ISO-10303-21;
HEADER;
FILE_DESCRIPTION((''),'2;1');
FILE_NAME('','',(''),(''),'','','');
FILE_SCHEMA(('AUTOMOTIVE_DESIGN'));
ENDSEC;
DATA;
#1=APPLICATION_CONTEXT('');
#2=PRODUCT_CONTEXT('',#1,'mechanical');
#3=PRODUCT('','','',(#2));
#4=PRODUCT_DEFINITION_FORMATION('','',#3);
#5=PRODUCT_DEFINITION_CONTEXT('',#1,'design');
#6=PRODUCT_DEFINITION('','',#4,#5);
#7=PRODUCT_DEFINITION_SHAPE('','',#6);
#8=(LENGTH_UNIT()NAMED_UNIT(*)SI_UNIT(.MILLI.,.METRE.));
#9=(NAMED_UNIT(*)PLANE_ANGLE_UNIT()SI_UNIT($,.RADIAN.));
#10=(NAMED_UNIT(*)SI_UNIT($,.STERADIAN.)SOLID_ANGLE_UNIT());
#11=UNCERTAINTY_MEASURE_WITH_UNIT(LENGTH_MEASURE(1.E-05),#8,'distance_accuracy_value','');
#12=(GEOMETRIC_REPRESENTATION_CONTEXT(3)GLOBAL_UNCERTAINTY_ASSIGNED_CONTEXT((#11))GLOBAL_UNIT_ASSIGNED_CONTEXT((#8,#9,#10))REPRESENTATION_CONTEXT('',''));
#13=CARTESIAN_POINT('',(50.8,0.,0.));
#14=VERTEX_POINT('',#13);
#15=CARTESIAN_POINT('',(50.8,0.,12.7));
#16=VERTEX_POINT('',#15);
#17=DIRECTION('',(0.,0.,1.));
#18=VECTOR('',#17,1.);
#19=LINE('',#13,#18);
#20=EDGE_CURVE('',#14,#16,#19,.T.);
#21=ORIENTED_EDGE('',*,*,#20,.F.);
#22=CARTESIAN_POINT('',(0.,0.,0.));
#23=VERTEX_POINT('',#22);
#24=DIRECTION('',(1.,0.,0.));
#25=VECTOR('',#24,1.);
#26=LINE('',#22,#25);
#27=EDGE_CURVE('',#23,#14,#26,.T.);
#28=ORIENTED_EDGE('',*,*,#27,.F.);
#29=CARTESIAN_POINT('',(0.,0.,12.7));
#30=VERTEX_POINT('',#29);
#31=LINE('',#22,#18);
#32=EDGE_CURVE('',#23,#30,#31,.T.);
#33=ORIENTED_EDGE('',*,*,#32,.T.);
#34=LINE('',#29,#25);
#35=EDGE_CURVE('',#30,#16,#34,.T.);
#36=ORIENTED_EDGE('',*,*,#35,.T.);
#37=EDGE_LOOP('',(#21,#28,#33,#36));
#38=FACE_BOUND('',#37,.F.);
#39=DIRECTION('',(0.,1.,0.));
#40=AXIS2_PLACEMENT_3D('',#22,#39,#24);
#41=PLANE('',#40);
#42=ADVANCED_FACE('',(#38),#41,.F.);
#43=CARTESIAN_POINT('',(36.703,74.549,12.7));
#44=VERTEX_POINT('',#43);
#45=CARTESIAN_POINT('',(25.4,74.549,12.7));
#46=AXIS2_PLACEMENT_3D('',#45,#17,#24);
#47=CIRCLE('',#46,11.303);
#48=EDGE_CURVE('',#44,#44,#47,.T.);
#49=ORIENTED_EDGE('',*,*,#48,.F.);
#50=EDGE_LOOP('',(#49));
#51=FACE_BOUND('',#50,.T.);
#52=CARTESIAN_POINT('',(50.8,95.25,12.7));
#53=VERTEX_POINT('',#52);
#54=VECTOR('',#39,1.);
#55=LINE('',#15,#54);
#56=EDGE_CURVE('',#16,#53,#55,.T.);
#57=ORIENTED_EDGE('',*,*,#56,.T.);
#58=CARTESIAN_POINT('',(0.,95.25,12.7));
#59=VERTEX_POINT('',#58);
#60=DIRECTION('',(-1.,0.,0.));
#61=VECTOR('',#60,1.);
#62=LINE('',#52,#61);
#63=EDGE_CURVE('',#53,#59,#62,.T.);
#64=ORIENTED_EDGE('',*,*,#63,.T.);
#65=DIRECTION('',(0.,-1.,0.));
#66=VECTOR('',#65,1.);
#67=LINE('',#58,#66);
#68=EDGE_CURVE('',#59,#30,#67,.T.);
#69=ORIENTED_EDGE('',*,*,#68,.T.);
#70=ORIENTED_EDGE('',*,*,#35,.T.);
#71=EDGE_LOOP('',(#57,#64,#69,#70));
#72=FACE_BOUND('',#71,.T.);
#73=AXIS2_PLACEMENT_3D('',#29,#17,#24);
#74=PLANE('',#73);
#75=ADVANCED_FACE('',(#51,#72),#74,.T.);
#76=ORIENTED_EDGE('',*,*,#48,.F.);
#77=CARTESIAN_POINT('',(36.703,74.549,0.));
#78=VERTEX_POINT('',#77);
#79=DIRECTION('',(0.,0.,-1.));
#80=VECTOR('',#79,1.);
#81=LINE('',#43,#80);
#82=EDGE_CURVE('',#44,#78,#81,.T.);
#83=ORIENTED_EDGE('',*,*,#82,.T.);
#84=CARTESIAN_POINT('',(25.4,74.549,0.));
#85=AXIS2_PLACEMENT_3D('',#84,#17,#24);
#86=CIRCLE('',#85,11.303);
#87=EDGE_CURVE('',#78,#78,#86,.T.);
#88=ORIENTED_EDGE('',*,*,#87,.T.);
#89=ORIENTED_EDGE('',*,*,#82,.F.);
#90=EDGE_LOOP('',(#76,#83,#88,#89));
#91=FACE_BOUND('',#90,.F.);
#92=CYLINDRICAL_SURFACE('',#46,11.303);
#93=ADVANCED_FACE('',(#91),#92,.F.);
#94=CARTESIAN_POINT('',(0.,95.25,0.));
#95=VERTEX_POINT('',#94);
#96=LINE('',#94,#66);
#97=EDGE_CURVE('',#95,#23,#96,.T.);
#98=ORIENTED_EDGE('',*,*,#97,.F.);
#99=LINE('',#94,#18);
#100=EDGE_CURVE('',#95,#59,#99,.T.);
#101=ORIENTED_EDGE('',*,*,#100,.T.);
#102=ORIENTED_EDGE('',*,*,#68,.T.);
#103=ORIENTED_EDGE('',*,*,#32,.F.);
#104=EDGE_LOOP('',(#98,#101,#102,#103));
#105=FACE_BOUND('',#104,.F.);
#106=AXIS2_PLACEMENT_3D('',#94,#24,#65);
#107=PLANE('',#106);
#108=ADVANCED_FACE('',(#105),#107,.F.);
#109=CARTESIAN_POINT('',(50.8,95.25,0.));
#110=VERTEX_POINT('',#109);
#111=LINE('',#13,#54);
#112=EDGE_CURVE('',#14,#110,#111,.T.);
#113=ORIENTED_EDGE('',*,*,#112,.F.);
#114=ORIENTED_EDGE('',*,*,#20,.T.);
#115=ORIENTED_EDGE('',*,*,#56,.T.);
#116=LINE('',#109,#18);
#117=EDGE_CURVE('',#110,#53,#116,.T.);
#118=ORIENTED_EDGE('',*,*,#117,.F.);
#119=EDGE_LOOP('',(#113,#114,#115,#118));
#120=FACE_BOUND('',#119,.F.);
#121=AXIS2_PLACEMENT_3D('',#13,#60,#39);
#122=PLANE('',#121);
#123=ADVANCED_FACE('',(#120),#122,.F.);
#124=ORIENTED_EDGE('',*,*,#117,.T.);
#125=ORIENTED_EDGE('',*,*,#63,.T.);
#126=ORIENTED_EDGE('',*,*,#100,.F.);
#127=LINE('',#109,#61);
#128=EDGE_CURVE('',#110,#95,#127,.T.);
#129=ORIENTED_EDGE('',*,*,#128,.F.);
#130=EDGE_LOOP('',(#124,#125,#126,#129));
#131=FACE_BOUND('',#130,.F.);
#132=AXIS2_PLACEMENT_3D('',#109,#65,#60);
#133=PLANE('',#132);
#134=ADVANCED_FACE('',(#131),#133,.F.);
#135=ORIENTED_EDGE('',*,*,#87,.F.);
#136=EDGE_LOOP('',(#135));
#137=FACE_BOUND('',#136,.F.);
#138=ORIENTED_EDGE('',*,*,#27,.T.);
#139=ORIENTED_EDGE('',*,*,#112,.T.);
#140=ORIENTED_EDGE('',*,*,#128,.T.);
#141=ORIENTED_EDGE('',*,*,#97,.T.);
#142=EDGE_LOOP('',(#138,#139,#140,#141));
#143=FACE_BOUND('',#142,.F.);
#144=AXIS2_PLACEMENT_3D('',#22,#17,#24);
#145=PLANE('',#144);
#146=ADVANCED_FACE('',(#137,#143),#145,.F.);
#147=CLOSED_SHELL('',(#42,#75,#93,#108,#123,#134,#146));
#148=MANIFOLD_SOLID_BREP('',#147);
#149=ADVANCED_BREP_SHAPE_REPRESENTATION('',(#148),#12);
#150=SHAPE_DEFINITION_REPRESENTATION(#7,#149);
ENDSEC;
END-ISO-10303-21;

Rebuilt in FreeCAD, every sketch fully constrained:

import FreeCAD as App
import Part
import Sketcher
from FreeCAD import Vector
Q = App.Units.Quantity


def add_polygon(sketch, points):
    """Adds a closed chain of lines whose ends are joined by coincident constraints."""
    first, n = sketch.GeometryCount, len(points)
    for a, b in zip(points, points[1:] + points[:1]):
        sketch.addGeometry(Part.LineSegment(App.Vector(*a, 0), App.Vector(*b, 0)), False)
    for i in range(n):
        sketch.addConstraint(Sketcher.Constraint("Coincident", first + i, 2, first + (i + 1) % n, 1))

doc = App.newDocument("Part")
body = doc.addObject("PartDesign::Body", "Body")

sketch1 = body.newObject("Sketcher::SketchObject", "Sketch")
sketch1.AttachmentSupport = (doc.getObject("XY_Plane"), [""])
sketch1.MapMode = "FlatFace"
add_polygon(sketch1, [(0, 95), (0, 0), (51, 0), (51, 95)])
sketch1.addConstraint([
    Sketcher.Constraint("Vertical", 0),
    Sketcher.Constraint("Horizontal", 1),
    Sketcher.Constraint("Vertical", 2),
    Sketcher.Constraint("Horizontal", 3),
    Sketcher.Constraint("Coincident", 0, 2, -1, 1),
    Sketcher.Constraint("DistanceX", 1, 1, 1, 2, Q("2 in")),
    Sketcher.Constraint("DistanceY", 0, 2, 0, 1, Q("3.75 in")),
])
pad1 = body.newObject("PartDesign::Pad", "Pad")
pad1.Profile = sketch1
pad1.Length = Q("0.5 in")

sketch2 = body.newObject("Sketcher::SketchObject", "Sketch001")
sketch2.AttachmentSupport = (doc.getObject("XY_Plane"), [""])
sketch2.MapMode = "FlatFace"
sketch2.AttachmentOffset = App.Placement(Vector(0, 0, 0.5 * 25.4), App.Rotation())
sketch2.addGeometry(Part.Circle(Vector(25, 75, 0), Vector(0, 0, 1), 11), False)
sketch2.addConstraint([
    Sketcher.Constraint("Diameter", 0, Q("0.89 in")),
    Sketcher.Constraint("DistanceX", -1, 1, 0, 3, Q("1 in")),
    Sketcher.Constraint("DistanceY", -1, 1, 0, 3, Q("2.935 in")),
])
pocket1 = body.newObject("PartDesign::Pocket", "Pocket")
pocket1.Profile = sketch2
pocket1.Length = Q("0.5 in")

doc.recompute()
